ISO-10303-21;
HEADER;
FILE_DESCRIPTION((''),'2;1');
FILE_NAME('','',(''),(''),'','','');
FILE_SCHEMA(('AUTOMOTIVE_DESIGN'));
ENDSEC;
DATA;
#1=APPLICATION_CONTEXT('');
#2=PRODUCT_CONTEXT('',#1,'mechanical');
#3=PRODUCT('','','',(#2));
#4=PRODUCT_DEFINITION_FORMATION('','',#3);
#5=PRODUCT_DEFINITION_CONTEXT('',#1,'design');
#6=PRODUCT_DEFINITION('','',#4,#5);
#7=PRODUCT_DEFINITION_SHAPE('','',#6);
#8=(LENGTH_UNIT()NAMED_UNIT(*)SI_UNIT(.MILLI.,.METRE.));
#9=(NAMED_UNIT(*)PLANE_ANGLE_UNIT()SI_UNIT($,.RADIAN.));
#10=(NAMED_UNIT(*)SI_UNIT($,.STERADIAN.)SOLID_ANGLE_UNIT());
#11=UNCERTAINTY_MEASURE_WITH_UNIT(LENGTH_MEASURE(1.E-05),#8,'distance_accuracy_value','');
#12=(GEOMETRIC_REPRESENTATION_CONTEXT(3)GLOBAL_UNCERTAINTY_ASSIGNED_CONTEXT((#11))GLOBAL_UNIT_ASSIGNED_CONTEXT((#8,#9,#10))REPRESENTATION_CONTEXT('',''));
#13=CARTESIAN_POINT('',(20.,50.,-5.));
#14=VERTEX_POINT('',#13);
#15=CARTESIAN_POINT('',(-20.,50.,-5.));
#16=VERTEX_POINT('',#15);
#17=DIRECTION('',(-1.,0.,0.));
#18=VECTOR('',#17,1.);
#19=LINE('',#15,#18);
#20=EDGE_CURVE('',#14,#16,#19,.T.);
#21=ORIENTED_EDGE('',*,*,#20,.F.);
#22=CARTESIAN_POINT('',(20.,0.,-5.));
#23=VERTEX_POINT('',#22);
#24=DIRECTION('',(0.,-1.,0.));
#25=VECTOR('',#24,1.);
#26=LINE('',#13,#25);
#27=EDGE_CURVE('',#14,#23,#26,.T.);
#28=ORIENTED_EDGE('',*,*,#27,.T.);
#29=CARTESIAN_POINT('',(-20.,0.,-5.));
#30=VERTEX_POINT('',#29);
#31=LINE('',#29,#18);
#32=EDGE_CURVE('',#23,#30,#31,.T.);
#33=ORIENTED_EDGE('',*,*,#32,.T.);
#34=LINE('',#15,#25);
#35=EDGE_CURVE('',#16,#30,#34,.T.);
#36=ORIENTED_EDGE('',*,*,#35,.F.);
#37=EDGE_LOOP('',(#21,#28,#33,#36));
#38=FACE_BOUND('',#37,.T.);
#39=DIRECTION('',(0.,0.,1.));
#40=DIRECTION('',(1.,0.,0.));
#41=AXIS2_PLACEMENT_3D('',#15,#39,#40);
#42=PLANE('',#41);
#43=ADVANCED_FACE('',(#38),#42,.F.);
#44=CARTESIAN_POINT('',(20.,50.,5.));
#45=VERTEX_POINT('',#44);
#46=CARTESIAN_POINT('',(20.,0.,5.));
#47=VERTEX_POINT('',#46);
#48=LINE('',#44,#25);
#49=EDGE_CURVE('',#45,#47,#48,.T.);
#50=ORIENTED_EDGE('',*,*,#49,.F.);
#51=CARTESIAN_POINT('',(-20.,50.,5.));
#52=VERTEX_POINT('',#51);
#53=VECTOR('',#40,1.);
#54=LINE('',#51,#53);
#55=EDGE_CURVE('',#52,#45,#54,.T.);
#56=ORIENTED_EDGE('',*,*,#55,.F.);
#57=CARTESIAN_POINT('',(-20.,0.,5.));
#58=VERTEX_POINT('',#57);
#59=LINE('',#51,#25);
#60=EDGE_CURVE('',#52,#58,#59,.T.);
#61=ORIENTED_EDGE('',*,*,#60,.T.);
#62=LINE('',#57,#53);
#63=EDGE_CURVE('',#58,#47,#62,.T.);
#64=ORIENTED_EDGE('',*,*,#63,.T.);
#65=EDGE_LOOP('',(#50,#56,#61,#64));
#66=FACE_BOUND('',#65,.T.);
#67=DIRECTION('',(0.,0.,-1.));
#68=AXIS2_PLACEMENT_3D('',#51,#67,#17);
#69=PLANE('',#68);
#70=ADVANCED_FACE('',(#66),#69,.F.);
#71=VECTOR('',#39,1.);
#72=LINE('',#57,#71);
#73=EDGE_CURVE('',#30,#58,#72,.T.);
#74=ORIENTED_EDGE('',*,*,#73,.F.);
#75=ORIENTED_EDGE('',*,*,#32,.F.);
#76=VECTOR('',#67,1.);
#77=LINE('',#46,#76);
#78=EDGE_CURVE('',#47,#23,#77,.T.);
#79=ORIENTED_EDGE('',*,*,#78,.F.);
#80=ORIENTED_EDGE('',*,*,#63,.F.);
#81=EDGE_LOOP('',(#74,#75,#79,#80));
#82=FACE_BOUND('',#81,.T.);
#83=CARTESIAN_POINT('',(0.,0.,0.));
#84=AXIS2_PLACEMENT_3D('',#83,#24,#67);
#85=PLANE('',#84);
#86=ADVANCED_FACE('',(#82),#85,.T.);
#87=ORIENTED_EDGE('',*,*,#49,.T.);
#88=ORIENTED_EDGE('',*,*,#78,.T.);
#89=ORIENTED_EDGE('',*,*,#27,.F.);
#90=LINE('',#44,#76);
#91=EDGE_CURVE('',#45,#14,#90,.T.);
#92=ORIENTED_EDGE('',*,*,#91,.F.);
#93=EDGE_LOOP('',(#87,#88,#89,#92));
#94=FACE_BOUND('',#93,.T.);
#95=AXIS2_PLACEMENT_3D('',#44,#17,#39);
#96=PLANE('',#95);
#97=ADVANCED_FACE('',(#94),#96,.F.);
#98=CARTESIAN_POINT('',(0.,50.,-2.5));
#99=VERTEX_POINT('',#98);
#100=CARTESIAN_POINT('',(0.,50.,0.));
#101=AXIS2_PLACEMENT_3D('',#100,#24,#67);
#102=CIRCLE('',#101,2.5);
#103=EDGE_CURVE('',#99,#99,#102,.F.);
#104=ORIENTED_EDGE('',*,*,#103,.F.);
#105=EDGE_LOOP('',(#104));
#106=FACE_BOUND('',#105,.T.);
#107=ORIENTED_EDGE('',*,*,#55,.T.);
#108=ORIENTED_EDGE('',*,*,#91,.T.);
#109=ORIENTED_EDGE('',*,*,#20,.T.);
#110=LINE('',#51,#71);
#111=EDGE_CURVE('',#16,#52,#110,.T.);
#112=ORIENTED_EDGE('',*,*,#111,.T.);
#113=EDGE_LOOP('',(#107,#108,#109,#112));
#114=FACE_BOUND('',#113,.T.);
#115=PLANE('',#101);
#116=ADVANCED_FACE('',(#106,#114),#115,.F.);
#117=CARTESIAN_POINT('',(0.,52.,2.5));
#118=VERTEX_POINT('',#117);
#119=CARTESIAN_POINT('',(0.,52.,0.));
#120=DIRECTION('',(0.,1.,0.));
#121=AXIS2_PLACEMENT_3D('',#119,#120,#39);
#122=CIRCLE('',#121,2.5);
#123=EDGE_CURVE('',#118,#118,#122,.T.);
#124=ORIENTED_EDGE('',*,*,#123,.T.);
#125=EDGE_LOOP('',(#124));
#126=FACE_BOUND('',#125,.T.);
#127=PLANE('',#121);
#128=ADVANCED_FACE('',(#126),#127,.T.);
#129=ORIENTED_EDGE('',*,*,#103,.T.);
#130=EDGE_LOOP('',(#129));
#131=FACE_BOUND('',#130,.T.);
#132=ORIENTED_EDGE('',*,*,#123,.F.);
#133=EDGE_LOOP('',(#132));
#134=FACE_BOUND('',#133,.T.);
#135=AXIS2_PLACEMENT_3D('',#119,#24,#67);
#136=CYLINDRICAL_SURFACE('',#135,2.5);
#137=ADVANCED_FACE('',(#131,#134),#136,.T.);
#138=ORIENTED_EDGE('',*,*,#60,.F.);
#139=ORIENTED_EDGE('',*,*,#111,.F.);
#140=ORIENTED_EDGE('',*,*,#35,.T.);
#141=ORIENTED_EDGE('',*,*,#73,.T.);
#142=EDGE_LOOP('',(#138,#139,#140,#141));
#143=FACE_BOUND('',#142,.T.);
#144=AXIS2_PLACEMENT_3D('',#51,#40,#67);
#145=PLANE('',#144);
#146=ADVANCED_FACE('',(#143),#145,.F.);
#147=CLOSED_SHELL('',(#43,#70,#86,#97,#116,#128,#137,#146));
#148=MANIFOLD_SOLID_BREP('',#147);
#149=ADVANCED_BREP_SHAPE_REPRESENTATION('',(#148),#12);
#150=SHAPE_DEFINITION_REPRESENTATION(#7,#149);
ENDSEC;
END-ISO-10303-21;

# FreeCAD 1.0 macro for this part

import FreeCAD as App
import Part
import Sketcher


def add_polygon(sketch, points):
    """Adds a closed chain of lines whose ends are joined by coincident constraints."""
    first, n = sketch.GeometryCount, len(points)
    for a, b in zip(points, points[1:] + points[:1]):
        sketch.addGeometry(Part.LineSegment(App.Vector(*a, 0), App.Vector(*b, 0)), False)
    for i in range(n):
        sketch.addConstraint(Sketcher.Constraint("Coincident", first + i, 2, first + (i + 1) % n, 1))

doc = App.newDocument("Part")
params = doc.addObject("Spreadsheet::Sheet", "Params")
for row, (alias, value) in enumerate([
    ("sketch1_width", "40 mm"),
    ("sketch1_height", "10 mm"),
    ("pad1_length", "50 mm"),
    ("sketch2_diameter", "5 mm"),
    ("pad2_length", "2 mm"),
], start=1):
    params.set(f"A{row}", alias)
    params.set(f"B{row}", "=" + value)
    params.setAlias(f"B{row}", alias)

body = doc.addObject("PartDesign::Body", "Body")

sketch1 = body.newObject("Sketcher::SketchObject", "Sketch")
sketch1.AttachmentSupport = (doc.getObject("XZ_Plane"), [""])
sketch1.MapMode = "FlatFace"
add_polygon(sketch1, [(-20, -5), (-20, 5), (20, 5), (20, -5)])
sketch1.addConstraint([
    Sketcher.Constraint("Vertical", 0),
    Sketcher.Constraint("Horizontal", 1),
    Sketcher.Constraint("Vertical", 2),
    Sketcher.Constraint("Horizontal", 3),
    Sketcher.Constraint("Symmetric", 0, 2, 2, 2, -1, 1),
    Sketcher.Constraint("DistanceX", 1, 1, 1, 2, 40.0),
    Sketcher.Constraint("DistanceY", 0, 1, 0, 2, 10.0),
])
sketch1.setExpression("Constraints[9]", "Params.sketch1_width")
sketch1.setExpression("Constraints[10]", "Params.sketch1_height")
pad1 = body.newObject("PartDesign::Pad", "Pad")
pad1.Profile = sketch1
pad1.setExpression("Length", "Params.pad1_length")
pad1.Reversed = True

sketch2 = body.newObject("Sketcher::SketchObject", "Sketch001")
sketch2.AttachmentSupport = (doc.getObject("XZ_Plane"), [""])
sketch2.MapMode = "FlatFace"
sketch2.AttachmentOffset = App.Placement(App.Vector(0, 0, -50), App.Rotation())
sketch2.addGeometry(Part.Circle(App.Vector(0, 0, 0), App.Vector(0, 0, 1), 2.5), False)
sketch2.addConstraint([
    Sketcher.Constraint("Coincident", 0, 3, -1, 1),
    Sketcher.Constraint("Diameter", 0, 5.0),
])
sketch2.setExpression("Constraints[1]", "Params.sketch2_diameter")
pad2 = body.newObject("PartDesign::Pad", "Pad001")
pad2.Profile = sketch2
pad2.setExpression("Length", "Params.pad2_length")
pad2.Reversed = True

doc.recompute()
